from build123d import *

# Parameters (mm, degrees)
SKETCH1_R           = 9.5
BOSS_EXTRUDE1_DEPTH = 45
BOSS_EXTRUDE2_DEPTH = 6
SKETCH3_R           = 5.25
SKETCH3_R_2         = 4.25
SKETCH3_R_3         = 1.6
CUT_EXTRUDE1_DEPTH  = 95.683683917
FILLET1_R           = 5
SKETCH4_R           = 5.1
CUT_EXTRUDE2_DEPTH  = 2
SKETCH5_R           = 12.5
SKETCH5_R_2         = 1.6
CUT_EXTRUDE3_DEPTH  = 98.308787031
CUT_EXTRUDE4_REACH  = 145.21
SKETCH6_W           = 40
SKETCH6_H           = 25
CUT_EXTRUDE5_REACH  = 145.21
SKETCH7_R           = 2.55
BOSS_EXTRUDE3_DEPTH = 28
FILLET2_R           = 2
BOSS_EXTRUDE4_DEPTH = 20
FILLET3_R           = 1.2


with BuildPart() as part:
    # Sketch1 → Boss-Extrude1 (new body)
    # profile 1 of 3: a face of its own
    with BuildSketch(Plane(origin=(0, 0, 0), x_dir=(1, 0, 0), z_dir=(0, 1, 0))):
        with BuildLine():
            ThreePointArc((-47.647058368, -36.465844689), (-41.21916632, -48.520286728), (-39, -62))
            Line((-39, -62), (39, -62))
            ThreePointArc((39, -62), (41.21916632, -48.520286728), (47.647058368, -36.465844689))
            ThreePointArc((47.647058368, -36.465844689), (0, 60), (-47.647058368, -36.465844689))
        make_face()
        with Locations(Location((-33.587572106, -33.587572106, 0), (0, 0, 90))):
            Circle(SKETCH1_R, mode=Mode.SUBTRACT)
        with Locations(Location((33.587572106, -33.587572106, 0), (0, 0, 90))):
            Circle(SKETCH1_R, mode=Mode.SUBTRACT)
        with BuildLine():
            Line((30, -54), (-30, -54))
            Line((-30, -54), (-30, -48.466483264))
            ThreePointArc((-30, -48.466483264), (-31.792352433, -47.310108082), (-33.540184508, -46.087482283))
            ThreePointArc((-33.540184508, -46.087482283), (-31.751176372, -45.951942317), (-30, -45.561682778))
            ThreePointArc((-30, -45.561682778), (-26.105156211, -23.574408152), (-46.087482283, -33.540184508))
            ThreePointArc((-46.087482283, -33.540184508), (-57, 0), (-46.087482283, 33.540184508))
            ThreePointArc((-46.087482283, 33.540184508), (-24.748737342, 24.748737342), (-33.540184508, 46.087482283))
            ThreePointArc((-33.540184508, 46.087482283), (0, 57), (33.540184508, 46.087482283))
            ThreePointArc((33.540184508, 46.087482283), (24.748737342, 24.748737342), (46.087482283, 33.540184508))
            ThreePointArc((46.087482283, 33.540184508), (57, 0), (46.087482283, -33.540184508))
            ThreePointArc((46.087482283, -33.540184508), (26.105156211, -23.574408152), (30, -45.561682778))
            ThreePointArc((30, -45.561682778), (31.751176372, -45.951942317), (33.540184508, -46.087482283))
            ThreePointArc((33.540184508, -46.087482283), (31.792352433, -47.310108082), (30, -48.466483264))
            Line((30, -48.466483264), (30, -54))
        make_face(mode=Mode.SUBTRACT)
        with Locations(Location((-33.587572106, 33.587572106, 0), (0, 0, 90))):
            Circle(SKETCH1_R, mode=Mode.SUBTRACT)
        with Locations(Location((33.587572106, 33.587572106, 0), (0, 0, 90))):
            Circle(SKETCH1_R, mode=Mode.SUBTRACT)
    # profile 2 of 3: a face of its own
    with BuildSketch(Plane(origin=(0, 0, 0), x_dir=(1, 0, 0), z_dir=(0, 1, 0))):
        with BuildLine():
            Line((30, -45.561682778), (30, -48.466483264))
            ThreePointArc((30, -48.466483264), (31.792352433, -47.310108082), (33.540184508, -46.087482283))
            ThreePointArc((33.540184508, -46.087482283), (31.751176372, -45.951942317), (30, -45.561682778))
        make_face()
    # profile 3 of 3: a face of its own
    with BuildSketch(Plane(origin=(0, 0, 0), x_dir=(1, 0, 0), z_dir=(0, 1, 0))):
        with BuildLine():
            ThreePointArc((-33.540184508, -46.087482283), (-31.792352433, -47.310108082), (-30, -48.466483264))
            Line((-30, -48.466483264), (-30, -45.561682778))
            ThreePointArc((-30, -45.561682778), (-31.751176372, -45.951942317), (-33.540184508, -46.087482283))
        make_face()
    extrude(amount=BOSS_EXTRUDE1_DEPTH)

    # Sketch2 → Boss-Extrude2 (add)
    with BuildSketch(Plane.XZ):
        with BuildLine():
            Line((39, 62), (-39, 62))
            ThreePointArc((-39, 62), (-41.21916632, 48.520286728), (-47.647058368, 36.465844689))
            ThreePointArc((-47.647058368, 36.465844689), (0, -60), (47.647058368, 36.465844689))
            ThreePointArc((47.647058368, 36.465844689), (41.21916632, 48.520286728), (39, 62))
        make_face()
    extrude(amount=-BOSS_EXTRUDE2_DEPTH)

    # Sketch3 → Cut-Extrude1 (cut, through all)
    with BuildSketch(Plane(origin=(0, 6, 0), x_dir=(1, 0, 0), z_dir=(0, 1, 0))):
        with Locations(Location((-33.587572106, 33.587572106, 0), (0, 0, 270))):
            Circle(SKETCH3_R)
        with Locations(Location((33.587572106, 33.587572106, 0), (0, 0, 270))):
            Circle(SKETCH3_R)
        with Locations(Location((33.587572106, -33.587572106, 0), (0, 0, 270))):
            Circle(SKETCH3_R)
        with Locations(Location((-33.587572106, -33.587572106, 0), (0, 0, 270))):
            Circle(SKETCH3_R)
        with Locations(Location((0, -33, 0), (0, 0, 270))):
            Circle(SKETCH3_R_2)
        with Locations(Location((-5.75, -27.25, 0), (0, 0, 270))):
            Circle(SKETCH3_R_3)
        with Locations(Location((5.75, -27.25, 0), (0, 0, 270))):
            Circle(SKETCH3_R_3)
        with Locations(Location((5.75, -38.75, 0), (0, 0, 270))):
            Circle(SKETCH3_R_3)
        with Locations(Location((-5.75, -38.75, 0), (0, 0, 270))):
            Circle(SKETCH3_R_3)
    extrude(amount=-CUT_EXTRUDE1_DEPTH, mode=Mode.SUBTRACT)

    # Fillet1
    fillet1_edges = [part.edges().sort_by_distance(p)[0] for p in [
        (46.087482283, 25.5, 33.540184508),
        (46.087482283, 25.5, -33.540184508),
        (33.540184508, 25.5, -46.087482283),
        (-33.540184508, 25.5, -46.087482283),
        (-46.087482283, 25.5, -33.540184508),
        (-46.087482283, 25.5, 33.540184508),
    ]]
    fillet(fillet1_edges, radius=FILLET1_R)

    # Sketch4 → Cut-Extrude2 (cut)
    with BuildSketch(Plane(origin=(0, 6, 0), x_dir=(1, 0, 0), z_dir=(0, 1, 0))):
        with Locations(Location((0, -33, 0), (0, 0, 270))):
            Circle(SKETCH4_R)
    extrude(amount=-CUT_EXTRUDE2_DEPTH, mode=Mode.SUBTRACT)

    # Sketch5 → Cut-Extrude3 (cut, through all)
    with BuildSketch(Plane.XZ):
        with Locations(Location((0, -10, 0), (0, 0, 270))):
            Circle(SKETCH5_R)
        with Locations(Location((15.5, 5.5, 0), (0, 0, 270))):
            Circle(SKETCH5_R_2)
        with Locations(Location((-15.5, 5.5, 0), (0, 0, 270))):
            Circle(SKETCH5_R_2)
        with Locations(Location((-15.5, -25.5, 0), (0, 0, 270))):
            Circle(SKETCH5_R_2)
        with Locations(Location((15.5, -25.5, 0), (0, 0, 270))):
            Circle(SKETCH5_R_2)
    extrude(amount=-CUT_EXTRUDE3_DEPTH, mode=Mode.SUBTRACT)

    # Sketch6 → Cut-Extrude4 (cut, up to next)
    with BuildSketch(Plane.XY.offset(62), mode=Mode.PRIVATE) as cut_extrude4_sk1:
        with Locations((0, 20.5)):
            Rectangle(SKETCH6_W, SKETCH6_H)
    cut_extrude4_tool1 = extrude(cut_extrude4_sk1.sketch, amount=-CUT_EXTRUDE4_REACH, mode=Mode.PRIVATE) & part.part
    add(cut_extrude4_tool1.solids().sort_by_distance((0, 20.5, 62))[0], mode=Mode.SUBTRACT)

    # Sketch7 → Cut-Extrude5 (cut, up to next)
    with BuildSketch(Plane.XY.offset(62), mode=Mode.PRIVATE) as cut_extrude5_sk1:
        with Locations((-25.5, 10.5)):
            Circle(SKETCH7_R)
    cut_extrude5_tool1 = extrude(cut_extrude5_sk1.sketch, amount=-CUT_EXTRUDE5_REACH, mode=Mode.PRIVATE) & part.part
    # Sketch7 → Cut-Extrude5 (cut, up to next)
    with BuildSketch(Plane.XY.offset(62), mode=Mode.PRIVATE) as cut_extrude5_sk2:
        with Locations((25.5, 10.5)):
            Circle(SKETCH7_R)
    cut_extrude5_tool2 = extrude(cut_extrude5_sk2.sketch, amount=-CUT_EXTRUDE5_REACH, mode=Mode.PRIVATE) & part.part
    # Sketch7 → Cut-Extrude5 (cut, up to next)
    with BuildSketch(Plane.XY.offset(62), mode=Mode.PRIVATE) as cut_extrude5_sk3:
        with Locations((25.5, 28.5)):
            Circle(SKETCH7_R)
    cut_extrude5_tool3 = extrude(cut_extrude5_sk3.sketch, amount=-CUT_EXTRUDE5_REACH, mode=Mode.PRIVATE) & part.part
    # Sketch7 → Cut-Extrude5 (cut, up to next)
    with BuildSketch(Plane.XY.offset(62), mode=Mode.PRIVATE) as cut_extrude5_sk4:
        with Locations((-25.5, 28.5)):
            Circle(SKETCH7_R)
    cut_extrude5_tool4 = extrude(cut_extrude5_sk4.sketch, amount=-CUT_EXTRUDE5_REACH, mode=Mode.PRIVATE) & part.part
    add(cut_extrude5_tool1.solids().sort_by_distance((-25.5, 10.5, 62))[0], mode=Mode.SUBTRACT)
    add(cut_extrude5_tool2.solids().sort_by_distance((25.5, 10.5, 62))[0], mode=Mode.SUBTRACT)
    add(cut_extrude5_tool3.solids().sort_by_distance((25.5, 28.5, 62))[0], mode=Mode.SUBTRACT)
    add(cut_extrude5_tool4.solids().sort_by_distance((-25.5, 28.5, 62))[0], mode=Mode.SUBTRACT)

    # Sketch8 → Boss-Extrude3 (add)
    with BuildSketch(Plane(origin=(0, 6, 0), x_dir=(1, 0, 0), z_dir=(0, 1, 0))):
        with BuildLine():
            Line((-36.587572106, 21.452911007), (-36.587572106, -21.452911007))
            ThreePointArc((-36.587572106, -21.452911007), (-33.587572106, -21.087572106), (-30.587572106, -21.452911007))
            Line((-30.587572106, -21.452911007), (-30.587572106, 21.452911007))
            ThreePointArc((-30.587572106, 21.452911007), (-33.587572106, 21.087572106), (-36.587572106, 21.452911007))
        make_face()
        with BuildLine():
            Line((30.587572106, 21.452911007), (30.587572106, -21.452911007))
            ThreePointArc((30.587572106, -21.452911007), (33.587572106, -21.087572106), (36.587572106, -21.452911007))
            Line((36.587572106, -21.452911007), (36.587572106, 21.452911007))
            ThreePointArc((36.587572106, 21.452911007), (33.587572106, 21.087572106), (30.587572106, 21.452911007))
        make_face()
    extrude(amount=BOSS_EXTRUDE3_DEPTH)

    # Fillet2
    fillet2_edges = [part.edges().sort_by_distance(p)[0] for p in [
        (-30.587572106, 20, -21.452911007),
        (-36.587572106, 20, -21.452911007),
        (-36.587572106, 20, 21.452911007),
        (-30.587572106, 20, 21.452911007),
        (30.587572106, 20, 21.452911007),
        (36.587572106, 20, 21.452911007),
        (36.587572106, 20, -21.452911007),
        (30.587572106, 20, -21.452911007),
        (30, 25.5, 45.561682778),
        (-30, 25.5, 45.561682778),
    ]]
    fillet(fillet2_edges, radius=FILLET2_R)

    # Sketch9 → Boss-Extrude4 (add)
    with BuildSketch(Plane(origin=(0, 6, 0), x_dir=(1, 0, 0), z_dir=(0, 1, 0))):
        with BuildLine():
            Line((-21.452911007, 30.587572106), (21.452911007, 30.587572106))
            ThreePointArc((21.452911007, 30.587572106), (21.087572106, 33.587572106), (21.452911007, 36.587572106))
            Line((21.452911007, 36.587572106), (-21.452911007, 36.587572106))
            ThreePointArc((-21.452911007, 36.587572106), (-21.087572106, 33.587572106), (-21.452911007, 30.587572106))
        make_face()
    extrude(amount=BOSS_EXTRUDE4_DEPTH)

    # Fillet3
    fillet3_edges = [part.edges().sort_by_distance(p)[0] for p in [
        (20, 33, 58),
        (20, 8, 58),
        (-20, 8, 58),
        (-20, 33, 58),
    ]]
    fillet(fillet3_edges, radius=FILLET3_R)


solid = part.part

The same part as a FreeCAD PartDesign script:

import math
import FreeCAD as App
import Part
import Sketcher
Q = App.Units.Quantity


def edges_at(feature, points):
    """Names of the edges that pass closest to the given points."""
    edges = feature.Shape.Edges
    near = lambda p: min(range(len(edges)), key=lambda i: edges[i].distToShape(Part.Vertex(*p))[0])
    return sorted({f"Edge{near(p) + 1}" for p in points})

doc = App.newDocument("Part")
params = doc.addObject("Spreadsheet::Sheet", "Params")
for row, (alias, value) in enumerate([
    ("sketch1_diameter", "19 mm"),
    ("sketch1_radius", "42 mm"),
    ("sketch1_radius2", "60 mm"),
    ("sketch1_radius3", "57 mm"),
    ("sketch1_radius4", "12.5 mm"),
    ("pad1_length", "45 mm"),
    ("sketch2_radius", "42 mm"),
    ("sketch2_radius2", "60 mm"),
    ("sketch2_width", "78 mm"),
    ("pad2_length", "6 mm"),
    ("sketch3_diameter", "10.5 mm"),
    ("sketch3_diameter2", "8.5 mm"),
    ("sketch3_diameter3", "3.2 mm"),
    ("fillet_radius", "5 mm"),
    ("sketch4_diameter", "10.2 mm"),
    ("pocket2_length", "2 mm"),
    ("sketch5_diameter", "25 mm"),
    ("sketch5_diameter2", "3.2 mm"),
    ("sketch6_width", "40 mm"),
    ("sketch6_height", "25 mm"),
    ("sketch7_diameter", "5.1 mm"),
    ("sketch8_diameter", "5.1 mm"),
    ("sketch9_diameter", "5.1 mm"),
    ("sketch10_diameter", "5.1 mm"),
    ("sketch11_radius", "12.5 mm"),
    ("pad3_length", "28 mm"),
    ("fillet2_radius", "2 mm"),
    ("sketch12_radius", "12.5 mm"),
    ("pad4_length", "20 mm"),
    ("fillet3_radius", "1.2 mm"),
], start=1):
    params.set(f"A{row}", alias)
    params.set(f"B{row}", "=" + value)
    params.setAlias(f"B{row}", alias)

body = doc.addObject("PartDesign::Body", "Body")

sketch1 = body.newObject("Sketcher::SketchObject", "Sketch")
sketch1.AttachmentSupport = (doc.getObject("XZ_Plane"), [""])
sketch1.MapMode = "FlatFace"
sketch1.addGeometry(Part.ArcOfCircle(Part.Circle(App.Vector(-81, 62, 0), App.Vector(0, 0, 1), 42), math.radians(-37), math.radians(0)), False)
sketch1.addGeometry(Part.LineSegment(App.Vector(-39, 62, 0), App.Vector(39, 62, 0)), False)
sketch1.addGeometry(Part.ArcOfCircle(Part.Circle(App.Vector(81, 62, 0), App.Vector(0, 0, 1), 42), math.radians(180), math.radians(217)), False)
sketch1.addGeometry(Part.ArcOfCircle(Part.Circle(App.Vector(0, 0, 0), App.Vector(0, 0, 1), 60), math.radians(143), math.radians(397)), False)
sketch1.addGeometry(Part.Circle(App.Vector(-34, 34, 0), App.Vector(0, 0, 1), 10), False)
sketch1.addGeometry(Part.Circle(App.Vector(34, 34, 0), App.Vector(0, 0, 1), 10), False)
sketch1.addGeometry(Part.Circle(App.Vector(-34, -34, 0), App.Vector(0, 0, 1), 10), False)
sketch1.addGeometry(Part.LineSegment(App.Vector(30, 54, 0), App.Vector(-30, 54, 0)), False)
sketch1.addGeometry(Part.LineSegment(App.Vector(-30, 54, 0), App.Vector(-30, 46, 0)), False)
sketch1.addGeometry(Part.ArcOfCircle(Part.Circle(App.Vector(-34, 34, 0), App.Vector(0, 0, 1), 12), math.radians(-180), math.radians(73)), False)
sketch1.addGeometry(Part.ArcOfCircle(Part.Circle(App.Vector(0, 0, 0), App.Vector(0, 0, 1), 57), math.radians(144), math.radians(216)), False)
sketch1.addGeometry(Part.ArcOfCircle(Part.Circle(App.Vector(-34, -34, 0), App.Vector(0, 0, 1), 12), math.radians(-90), math.radians(180)), False)
sketch1.addGeometry(Part.ArcOfCircle(Part.Circle(App.Vector(0, 0, 0), App.Vector(0, 0, 1), 57), math.radians(-126), math.radians(-54)), False)
sketch1.addGeometry(Part.ArcOfCircle(Part.Circle(App.Vector(34, -34, 0), App.Vector(0, 0, 1), 12), math.radians(0), math.radians(270)), False)
sketch1.addGeometry(Part.ArcOfCircle(Part.Circle(App.Vector(0, 0, 0), App.Vector(0, 0, 1), 57), math.radians(-36), math.radians(36)), False)
sketch1.addGeometry(Part.ArcOfCircle(Part.Circle(App.Vector(34, 34, 0), App.Vector(0, 0, 1), 12), math.radians(107), math.radians(360)), False)
sketch1.addGeometry(Part.LineSegment(App.Vector(30, 46, 0), App.Vector(30, 54, 0)), False)
sketch1.addGeometry(Part.Circle(App.Vector(34, -34, 0), App.Vector(0, 0, 1), 10), False)
sketch1.addConstraint(Sketcher.Constraint("Coincident", 0, 2, 1, 1))
sketch1.addConstraint(Sketcher.Constraint("Coincident", 1, 2, 2, 1))
sketch1.addConstraint(Sketcher.Constraint("Tangent", 2, 2, 3, 2))
sketch1.addConstraint(Sketcher.Constraint("Tangent", 3, 1, 0, 1))
sketch1.addConstraint(Sketcher.Constraint("Coincident", 7, 2, 8, 1))
sketch1.addConstraint(Sketcher.Constraint("Coincident", 8, 2, 9, 2))
sketch1.addConstraint(Sketcher.Constraint("Coincident", 9, 1, 10, 1))
sketch1.addConstraint(Sketcher.Constraint("Coincident", 10, 2, 11, 2))
sketch1.addConstraint(Sketcher.Constraint("Coincident", 11, 1, 12, 1))
sketch1.addConstraint(Sketcher.Constraint("Coincident", 12, 2, 13, 2))
sketch1.addConstraint(Sketcher.Constraint("Coincident", 13, 1, 14, 1))
sketch1.addConstraint(Sketcher.Constraint("Coincident", 14, 2, 15, 2))
sketch1.addConstraint(Sketcher.Constraint("Coincident", 15, 1, 16, 1))
sketch1.addConstraint(Sketcher.Constraint("Coincident", 16, 2, 7, 1))
sketch1.addConstraint(Sketcher.Constraint("Horizontal", 1))
sketch1.addConstraint(Sketcher.Constraint("Horizontal", 7))
sketch1.addConstraint(Sketcher.Constraint("Vertical", 8))
sketch1.addConstraint(Sketcher.Constraint("Vertical", 16))
sketch1.addConstraint(Sketcher.Constraint("Coincident", 3, 3, -1, 1))
sketch1.addConstraint(Sketcher.Constraint("Coincident", 10, 3, -1, 1))
sketch1.addConstraint(Sketcher.Constraint("Coincident", 12, 3, -1, 1))
sketch1.addConstraint(Sketcher.Constraint("Coincident", 14, 3, -1, 1))
sketch1.addConstraint(Sketcher.Constraint("Coincident", 9, 3, 4, 3))
sketch1.addConstraint(Sketcher.Constraint("Coincident", 11, 3, 6, 3))
sketch1.addConstraint(Sketcher.Constraint("Coincident", 15, 3, 5, 3))
sketch1.addConstraint(Sketcher.Constraint("Coincident", 17, 3, 13, 3))
sketch1.addConstraint(Sketcher.Constraint("Equal", 0, 2))
sketch1.addConstraint(Sketcher.Constraint("Equal", 4, 5))
sketch1.addConstraint(Sketcher.Constraint("Equal", 5, 6))
sketch1.addConstraint(Sketcher.Constraint("Equal", 9, 11))
sketch1.addConstraint(Sketcher.Constraint("Equal", 10, 12))
sketch1.addConstraint(Sketcher.Constraint("Equal", 11, 13))
sketch1.addConstraint(Sketcher.Constraint("Equal", 12, 14))
sketch1.addConstraint(Sketcher.Constraint("Equal", 13, 15))
sketch1.addConstraint(Sketcher.Constraint("Equal", 6, 17))
sketch1.addConstraint(Sketcher.Constraint("Symmetric", 5, 3, 6, 3, -1, 1))
sketch1.addConstraint(Sketcher.Constraint("Symmetric", 4, 3, 13, 3, -1, 1))
sketch1.addConstraint(Sketcher.Constraint("Symmetric", 4, 3, 5, 3, -2))
sketch1.addConstraint(Sketcher.Constraint("Horizontal", 0, 3, 2, 3))
sketch1.addConstraint(Sketcher.Constraint("Horizontal", 8, 2, 15, 1))
sketch1.addConstraint(Sketcher.Constraint("Diameter", 4, Q("19 mm")))
sketch1.addConstraint(Sketcher.Constraint("Radius", 0, Q("42 mm")))
sketch1.addConstraint(Sketcher.Constraint("Radius", 3, Q("60 mm")))
sketch1.addConstraint(Sketcher.Constraint("Radius", 10, Q("57 mm")))
sketch1.addConstraint(Sketcher.Constraint("Radius", 9, Q("12.5 mm")))
sketch1.addConstraint(Sketcher.Constraint("DistanceX", 1, 1, 1, 2, Q("78 mm")))
sketch1.addConstraint(Sketcher.Constraint("DistanceX", 7, 2, 7, 1, Q("60 mm")))
sketch1.addConstraint(Sketcher.Constraint("DistanceY", -1, 1, 0, 2, Q("62 mm")))
sketch1.addConstraint(Sketcher.Constraint("DistanceY", -1, 1, 7, 2, Q("54 mm")))
sketch1.addConstraint(Sketcher.Constraint("DistanceY", 9, 1, 8, 2, Q("12.021498 mm")))
sketch1.addConstraint(Sketcher.Constraint("DistanceY", 8, 2, 8, 1, Q("8.438317 mm")))
sketch1.setExpression("Constraints[40]", "Params.sketch1_diameter")
sketch1.setExpression("Constraints[41]", "Params.sketch1_radius")
sketch1.setExpression("Constraints[42]", "Params.sketch1_radius2")
sketch1.setExpression("Constraints[43]", "Params.sketch1_radius3")
sketch1.setExpression("Constraints[44]", "Params.sketch1_radius4")
pad1 = body.newObject("PartDesign::Pad", "Pad")
pad1.Profile = sketch1
pad1.setExpression("Length", "Params.pad1_length")
pad1.Reversed = True

sketch2 = body.newObject("Sketcher::SketchObject", "Sketch001")
sketch2.AttachmentSupport = (doc.getObject("XZ_Plane"), [""])
sketch2.MapMode = "FlatFace"
sketch2.addGeometry(Part.LineSegment(App.Vector(39, 62, 0), App.Vector(-39, 62, 0)), False)
sketch2.addGeometry(Part.ArcOfCircle(Part.Circle(App.Vector(-81, 62, 0), App.Vector(0, 0, 1), 42), math.radians(-37), math.radians(0)), False)
sketch2.addGeometry(Part.ArcOfCircle(Part.Circle(App.Vector(0, 0, 0), App.Vector(0, 0, 1), 60), math.radians(143), math.radians(397)), False)
sketch2.addGeometry(Part.ArcOfCircle(Part.Circle(App.Vector(81, 62, 0), App.Vector(0, 0, 1), 42), math.radians(180), math.radians(217)), False)
sketch2.addConstraint(Sketcher.Constraint("Coincident", 0, 2, 1, 2))
sketch2.addConstraint(Sketcher.Constraint("Tangent", 1, 1, 2, 1))
sketch2.addConstraint(Sketcher.Constraint("Tangent", 2, 2, 3, 2))
sketch2.addConstraint(Sketcher.Constraint("Coincident", 3, 1, 0, 1))
sketch2.addConstraint(Sketcher.Constraint("Horizontal", 0))
sketch2.addConstraint(Sketcher.Constraint("Coincident", 2, 3, -1, 1))
sketch2.addConstraint(Sketcher.Constraint("Equal", 1, 3))
sketch2.addConstraint(Sketcher.Constraint("Horizontal", 1, 3, 3, 3))
sketch2.addConstraint(Sketcher.Constraint("Radius", 1, Q("42 mm")))
sketch2.addConstraint(Sketcher.Constraint("Radius", 2, Q("60 mm")))
sketch2.addConstraint(Sketcher.Constraint("DistanceX", 0, 2, 0, 1, Q("78 mm")))
sketch2.addConstraint(Sketcher.Constraint("DistanceY", -1, 1, 0, 2, Q("62 mm")))
sketch2.setExpression("Constraints[8]", "Params.sketch2_radius")
sketch2.setExpression("Constraints[9]", "Params.sketch2_radius2")
sketch2.setExpression("Constraints[10]", "Params.sketch2_width")
pad2 = body.newObject("PartDesign::Pad", "Pad001")
pad2.Profile = sketch2
pad2.setExpression("Length", "Params.pad2_length")
pad2.Reversed = True

sketch3 = body.newObject("Sketcher::SketchObject", "Sketch002")
sketch3.AttachmentSupport = (doc.getObject("XZ_Plane"), [""])
sketch3.MapMode = "FlatFace"
sketch3.AttachmentOffset = App.Placement(App.Vector(0, 0, -6), App.Rotation())
sketch3.addGeometry(Part.Circle(App.Vector(-33.6, -33.6, 0), App.Vector(0, 0, 1), 5.2), False)
sketch3.addGeometry(Part.Circle(App.Vector(33.6, -33.6, 0), App.Vector(0, 0, 1), 5.2), False)
sketch3.addGeometry(Part.Circle(App.Vector(33.6, 33.6, 0), App.Vector(0, 0, 1), 5.2), False)
sketch3.addGeometry(Part.Circle(App.Vector(-33.6, 33.6, 0), App.Vector(0, 0, 1), 5.2), False)
sketch3.addGeometry(Part.Circle(App.Vector(0, 33, 0), App.Vector(0, 0, 1), 4.2), False)
sketch3.addGeometry(Part.Circle(App.Vector(-5.8, 27.2, 0), App.Vector(0, 0, 1), 1.6), False)
sketch3.addGeometry(Part.Circle(App.Vector(5.8, 27.2, 0), App.Vector(0, 0, 1), 1.6), False)
sketch3.addGeometry(Part.Circle(App.Vector(5.8, 38.8, 0), App.Vector(0, 0, 1), 1.6), False)
sketch3.addGeometry(Part.Circle(App.Vector(-5.8, 38.8, 0), App.Vector(0, 0, 1), 1.6), False)
sketch3.addConstraint(Sketcher.Constraint("Equal", 0, 1))
sketch3.addConstraint(Sketcher.Constraint("Equal", 1, 2))
sketch3.addConstraint(Sketcher.Constraint("Equal", 2, 3))
sketch3.addConstraint(Sketcher.Constraint("Equal", 5, 6))
sketch3.addConstraint(Sketcher.Constraint("Equal", 6, 7))
sketch3.addConstraint(Sketcher.Constraint("Equal", 7, 8))
sketch3.addConstraint(Sketcher.Constraint("Symmetric", 0, 3, 2, 3, -1, 1))
sketch3.addConstraint(Sketcher.Constraint("Symmetric", 1, 3, 3, 3, -1, 1))
sketch3.addConstraint(Sketcher.Constraint("Symmetric", 0, 3, 1, 3, -2))
sketch3.addConstraint(Sketcher.Constraint("Symmetric", 5, 3, 6, 3, -2))
sketch3.addConstraint(Sketcher.Constraint("Symmetric", 7, 3, 8, 3, -2))
sketch3.addConstraint(Sketcher.Constraint("PointOnObject", 4, 3, -2))
sketch3.addConstraint(Sketcher.Constraint("Vertical", 6, 3, 7, 3))
sketch3.addConstraint(Sketcher.Constraint("Diameter", 0, Q("10.5 mm")))
sketch3.addConstraint(Sketcher.Constraint("Diameter", 4, Q("8.5 mm")))
sketch3.addConstraint(Sketcher.Constraint("Diameter", 5, Q("3.2 mm")))
sketch3.addConstraint(Sketcher.Constraint("DistanceY", -1, 1, 4, 3, Q("33 mm")))
sketch3.addConstraint(Sketcher.Constraint("DistanceX", 5, 3, 6, 3, Q("11.5 mm")))
sketch3.addConstraint(Sketcher.Constraint("DistanceY", 6, 3, 7, 3, Q("11.5 mm")))
sketch3.addConstraint(Sketcher.Constraint("DistanceY", -1, 1, 5, 3, Q("27.25 mm")))
sketch3.addConstraint(Sketcher.Constraint("DistanceX", 0, 3, -1, 1, Q("33.587572 mm")))
sketch3.addConstraint(Sketcher.Constraint("DistanceY", 0, 3, -1, 1, Q("33.587572 mm")))
sketch3.setExpression("Constraints[13]", "Params.sketch3_diameter")
sketch3.setExpression("Constraints[14]", "Params.sketch3_diameter2")
sketch3.setExpression("Constraints[15]", "Params.sketch3_diameter3")
pocket1 = body.newObject("PartDesign::Pocket", "Pocket")
pocket1.Profile = sketch3
pocket1.Type = "ThroughAll"
pocket1.Reversed = True
doc.recompute()

fillet = body.newObject("PartDesign::Fillet", "Fillet")
fillet.Base = (pocket1, edges_at(pocket1, [
    (46.087, 25.5, 33.54),
    (46.087, 25.5, -33.54),
    (33.54, 25.5, -46.087),
    (-33.54, 25.5, -46.087),
    (-46.087, 25.5, -33.54),
    (-46.087, 25.5, 33.54),
]))
fillet.setExpression("Radius", "Params.fillet_radius")

sketch4 = body.newObject("Sketcher::SketchObject", "Sketch003")
sketch4.AttachmentSupport = (doc.getObject("XZ_Plane"), [""])
sketch4.MapMode = "FlatFace"
sketch4.AttachmentOffset = App.Placement(App.Vector(0, 0, -6), App.Rotation())
sketch4.addGeometry(Part.Circle(App.Vector(0, 33, 0), App.Vector(0, 0, 1), 5), False)
sketch4.addConstraint(Sketcher.Constraint("PointOnObject", 0, 3, -2))
sketch4.addConstraint(Sketcher.Constraint("Diameter", 0, Q("10.2 mm")))
sketch4.addConstraint(Sketcher.Constraint("DistanceY", -1, 1, 0, 3, Q("33 mm")))
sketch4.setExpression("Constraints[1]", "Params.sketch4_diameter")
pocket2 = body.newObject("PartDesign::Pocket", "Pocket001")
pocket2.Profile = sketch4
pocket2.setExpression("Length", "Params.pocket2_length")
pocket2.Reversed = True

sketch5 = body.newObject("Sketcher::SketchObject", "Sketch004")
sketch5.AttachmentSupport = (doc.getObject("XZ_Plane"), [""])
sketch5.MapMode = "FlatFace"
sketch5.addGeometry(Part.Circle(App.Vector(0, -10, 0), App.Vector(0, 0, 1), 12.5), False)
sketch5.addGeometry(Part.Circle(App.Vector(15.5, 5.5, 0), App.Vector(0, 0, 1), 1.6), False)
sketch5.addGeometry(Part.Circle(App.Vector(-15.5, 5.5, 0), App.Vector(0, 0, 1), 1.6), False)
sketch5.addGeometry(Part.Circle(App.Vector(-15.5, -25.5, 0), App.Vector(0, 0, 1), 1.6), False)
sketch5.addGeometry(Part.Circle(App.Vector(15.5, -25.5, 0), App.Vector(0, 0, 1), 1.6), False)
sketch5.addConstraint(Sketcher.Constraint("Equal", 1, 2))
sketch5.addConstraint(Sketcher.Constraint("Equal", 2, 3))
sketch5.addConstraint(Sketcher.Constraint("Equal", 3, 4))
sketch5.addConstraint(Sketcher.Constraint("Symmetric", 1, 3, 2, 3, -2))
sketch5.addConstraint(Sketcher.Constraint("Symmetric", 3, 3, 4, 3, -2))
sketch5.addConstraint(Sketcher.Constraint("PointOnObject", 0, 3, -2))
sketch5.addConstraint(Sketcher.Constraint("Vertical", 2, 3, 3, 3))
sketch5.addConstraint(Sketcher.Constraint("Diameter", 0, Q("25 mm")))
sketch5.addConstraint(Sketcher.Constraint("Diameter", 1, Q("3.2 mm")))
sketch5.addConstraint(Sketcher.Constraint("DistanceY", 0, 3, -1, 1, Q("10 mm")))
sketch5.addConstraint(Sketcher.Constraint("DistanceX", 2, 3, 1, 3, Q("31 mm")))
sketch5.addConstraint(Sketcher.Constraint("DistanceY", 3, 3, 2, 3, Q("31 mm")))
sketch5.addConstraint(Sketcher.Constraint("DistanceY", -1, 1, 1, 3, Q("5.5 mm")))
sketch5.setExpression("Constraints[7]", "Params.sketch5_diameter")
sketch5.setExpression("Constraints[8]", "Params.sketch5_diameter2")
pocket3 = body.newObject("PartDesign::Pocket", "Pocket002")
pocket3.Profile = sketch5
pocket3.Type = "ThroughAll"

sketch6 = body.newObject("Sketcher::SketchObject", "Sketch005")
sketch6.AttachmentSupport = (doc.getObject("XY_Plane"), [""])
sketch6.MapMode = "FlatFace"
sketch6.AttachmentOffset = App.Placement(App.Vector(0, 0, 62), App.Rotation())
sketch6.addGeometry(Part.LineSegment(App.Vector(-20, 33, 0), App.Vector(-20, 8, 0)), False)
sketch6.addGeometry(Part.LineSegment(App.Vector(-20, 8, 0), App.Vector(20, 8, 0)), False)
sketch6.addGeometry(Part.LineSegment(App.Vector(20, 8, 0), App.Vector(20, 33, 0)), False)
sketch6.addGeometry(Part.LineSegment(App.Vector(20, 33, 0), App.Vector(-20, 33, 0)), False)
sketch6.addConstraint(Sketcher.Constraint("Coincident", 0, 2, 1, 1))
sketch6.addConstraint(Sketcher.Constraint("Coincident", 1, 2, 2, 1))
sketch6.addConstraint(Sketcher.Constraint("Coincident", 2, 2, 3, 1))
sketch6.addConstraint(Sketcher.Constraint("Coincident", 3, 2, 0, 1))
sketch6.addConstraint(Sketcher.Constraint("Vertical", 0))
sketch6.addConstraint(Sketcher.Constraint("Horizontal", 1))
sketch6.addConstraint(Sketcher.Constraint("Vertical", 2))
sketch6.addConstraint(Sketcher.Constraint("Horizontal", 3))
sketch6.addConstraint(Sketcher.Constraint("DistanceX", 1, 1, 1, 2, Q("40 mm")))
sketch6.addConstraint(Sketcher.Constraint("DistanceY", 0, 2, 0, 1, Q("25 mm")))
sketch6.addConstraint(Sketcher.Constraint("DistanceX", 0, 2, -1, 1, Q("20 mm")))
sketch6.addConstraint(Sketcher.Constraint("DistanceY", -1, 1, 0, 2, Q("8 mm")))
sketch6.setExpression("Constraints[8]", "Params.sketch6_width")
sketch6.setExpression("Constraints[9]", "Params.sketch6_height")
pocket4 = body.newObject("PartDesign::Pocket", "Pocket003")
pocket4.Profile = sketch6
pocket4.Type = "UpToFirst"

sketch7 = body.newObject("Sketcher::SketchObject", "Sketch006")
sketch7.AttachmentSupport = (doc.getObject("XY_Plane"), [""])
sketch7.MapMode = "FlatFace"
sketch7.AttachmentOffset = App.Placement(App.Vector(0, 0, 62), App.Rotation())
sketch7.addGeometry(Part.Circle(App.Vector(-25.5, 10.5, 0), App.Vector(0, 0, 1), 2.5), False)
sketch7.addConstraint(Sketcher.Constraint("Diameter", 0, Q("5.1 mm")))
sketch7.addConstraint(Sketcher.Constraint("DistanceX", 0, 3, -1, 1, Q("25.5 mm")))
sketch7.addConstraint(Sketcher.Constraint("DistanceY", -1, 1, 0, 3, Q("10.5 mm")))
sketch7.setExpression("Constraints[0]", "Params.sketch7_diameter")
pocket5 = body.newObject("PartDesign::Pocket", "Pocket004")
pocket5.Profile = sketch7
pocket5.Type = "UpToFirst"

sketch8 = body.newObject("Sketcher::SketchObject", "Sketch007")
sketch8.AttachmentSupport = (doc.getObject("XY_Plane"), [""])
sketch8.MapMode = "FlatFace"
sketch8.AttachmentOffset = App.Placement(App.Vector(0, 0, 62), App.Rotation())
sketch8.addGeometry(Part.Circle(App.Vector(25.5, 10.5, 0), App.Vector(0, 0, 1), 2.5), False)
sketch8.addConstraint(Sketcher.Constraint("Diameter", 0, Q("5.1 mm")))
sketch8.addConstraint(Sketcher.Constraint("DistanceX", -1, 1, 0, 3, Q("25.5 mm")))
sketch8.addConstraint(Sketcher.Constraint("DistanceY", -1, 1, 0, 3, Q("10.5 mm")))
sketch8.setExpression("Constraints[0]", "Params.sketch8_diameter")
pocket6 = body.newObject("PartDesign::Pocket", "Pocket005")
pocket6.Profile = sketch8
pocket6.Type = "UpToFirst"

sketch9 = body.newObject("Sketcher::SketchObject", "Sketch008")
sketch9.AttachmentSupport = (doc.getObject("XY_Plane"), [""])
sketch9.MapMode = "FlatFace"
sketch9.AttachmentOffset = App.Placement(App.Vector(0, 0, 62), App.Rotation())
sketch9.addGeometry(Part.Circle(App.Vector(25.5, 28.5, 0), App.Vector(0, 0, 1), 2.5), False)
sketch9.addConstraint(Sketcher.Constraint("Diameter", 0, Q("5.1 mm")))
sketch9.addConstraint(Sketcher.Constraint("DistanceX", -1, 1, 0, 3, Q("25.5 mm")))
sketch9.addConstraint(Sketcher.Constraint("DistanceY", -1, 1, 0, 3, Q("28.5 mm")))
sketch9.setExpression("Constraints[0]", "Params.sketch9_diameter")
pocket7 = body.newObject("PartDesign::Pocket", "Pocket006")
pocket7.Profile = sketch9
pocket7.Type = "UpToFirst"

sketch10 = body.newObject("Sketcher::SketchObject", "Sketch009")
sketch10.AttachmentSupport = (doc.getObject("XY_Plane"), [""])
sketch10.MapMode = "FlatFace"
sketch10.AttachmentOffset = App.Placement(App.Vector(0, 0, 62), App.Rotation())
sketch10.addGeometry(Part.Circle(App.Vector(-25.5, 28.5, 0), App.Vector(0, 0, 1), 2.5), False)
sketch10.addConstraint(Sketcher.Constraint("Diameter", 0, Q("5.1 mm")))
sketch10.addConstraint(Sketcher.Constraint("DistanceX", 0, 3, -1, 1, Q("25.5 mm")))
sketch10.addConstraint(Sketcher.Constraint("DistanceY", -1, 1, 0, 3, Q("28.5 mm")))
sketch10.setExpression("Constraints[0]", "Params.sketch10_diameter")
pocket8 = body.newObject("PartDesign::Pocket", "Pocket007")
pocket8.Profile = sketch10
pocket8.Type = "UpToFirst"

sketch11 = body.newObject("Sketcher::SketchObject", "Sketch010")
sketch11.AttachmentSupport = (doc.getObject("XZ_Plane"), [""])
sketch11.MapMode = "FlatFace"
sketch11.AttachmentOffset = App.Placement(App.Vector(0, 0, -6), App.Rotation())
sketch11.addGeometry(Part.LineSegment(App.Vector(-37, -21, 0), App.Vector(-37, 21, 0)), False)
sketch11.addGeometry(Part.ArcOfCircle(Part.Circle(App.Vector(-34, 34, 0), App.Vector(0, 0, 1), 12), math.radians(-104), math.radians(-76)), False)
sketch11.addGeometry(Part.LineSegment(App.Vector(-31, 21, 0), App.Vector(-31, -21, 0)), False)
sketch11.addGeometry(Part.ArcOfCircle(Part.Circle(App.Vector(-34, -34, 0), App.Vector(0, 0, 1), 12), math.radians(76), math.radians(104)), False)
sketch11.addGeometry(Part.LineSegment(App.Vector(31, -21, 0), App.Vector(31, 21, 0)), False)
sketch11.addGeometry(Part.ArcOfCircle(Part.Circle(App.Vector(34, 34, 0), App.Vector(0, 0, 1), 12), math.radians(-104), math.radians(-76)), False)
sketch11.addGeometry(Part.LineSegment(App.Vector(37, 21, 0), App.Vector(37, -21, 0)), False)
sketch11.addGeometry(Part.ArcOfCircle(Part.Circle(App.Vector(34, -34, 0), App.Vector(0, 0, 1), 12), math.radians(76), math.radians(104)), False)
sketch11.addConstraint(Sketcher.Constraint("Coincident", 0, 2, 1, 1))
sketch11.addConstraint(Sketcher.Constraint("Coincident", 1, 2, 2, 1))
sketch11.addConstraint(Sketcher.Constraint("Coincident", 2, 2, 3, 1))
sketch11.addConstraint(Sketcher.Constraint("Coincident", 3, 2, 0, 1))
sketch11.addConstraint(Sketcher.Constraint("Coincident", 4, 2, 5, 1))
sketch11.addConstraint(Sketcher.Constraint("Coincident", 5, 2, 6, 1))
sketch11.addConstraint(Sketcher.Constraint("Coincident", 6, 2, 7, 1))
sketch11.addConstraint(Sketcher.Constraint("Coincident", 7, 2, 4, 1))
sketch11.addConstraint(Sketcher.Constraint("Vertical", 0))
sketch11.addConstraint(Sketcher.Constraint("Vertical", 2))
sketch11.addConstraint(Sketcher.Constraint("Vertical", 4))
sketch11.addConstraint(Sketcher.Constraint("Vertical", 6))
sketch11.addConstraint(Sketcher.Constraint("Equal", 1, 3))
sketch11.addConstraint(Sketcher.Constraint("Equal", 3, 5))
sketch11.addConstraint(Sketcher.Constraint("Equal", 5, 7))
sketch11.addConstraint(Sketcher.Constraint("Symmetric", 3, 3, 5, 3, -1, 1))
sketch11.addConstraint(Sketcher.Constraint("Symmetric", 1, 3, 7, 3, -1, 1))
sketch11.addConstraint(Sketcher.Constraint("Symmetric", 1, 3, 5, 3, -2))
sketch11.addConstraint(Sketcher.Constraint("Horizontal", 0, 2, 1, 2))
sketch11.addConstraint(Sketcher.Constraint("Horizontal", 1, 2, 4, 2))
sketch11.addConstraint(Sketcher.Constraint("Horizontal", 4, 2, 5, 2))
sketch11.addConstraint(Sketcher.Constraint("Radius", 1, Q("12.5 mm")))
sketch11.addConstraint(Sketcher.Constraint("DistanceX", 0, 2, 1, 3, Q("3 mm")))
sketch11.addConstraint(Sketcher.Constraint("DistanceY", 0, 1, 0, 2, Q("42.905822 mm")))
sketch11.addConstraint(Sketcher.Constraint("DistanceX", 1, 3, -1, 1, Q("33.587572 mm")))
sketch11.setExpression("Constraints[21]", "Params.sketch11_radius")
pad3 = body.newObject("PartDesign::Pad", "Pad002")
pad3.Profile = sketch11
pad3.setExpression("Length", "Params.pad3_length")
pad3.Reversed = True
doc.recompute()

fillet2 = body.newObject("PartDesign::Fillet", "Fillet001")
fillet2.Base = (pad3, edges_at(pad3, [
    (-30.588, 20, -21.453),
    (-36.588, 20, -21.453),
    (-36.588, 20, 21.453),
    (-30.588, 20, 21.453),
    (30.588, 20, 21.453),
    (36.588, 20, 21.453),
    (36.588, 20, -21.453),
    (30.588, 20, -21.453),
    (30, 25.5, 45.562),
    (-30, 25.5, 45.562),
]))
fillet2.setExpression("Radius", "Params.fillet2_radius")

sketch12 = body.newObject("Sketcher::SketchObject", "Sketch011")
sketch12.AttachmentSupport = (doc.getObject("XZ_Plane"), [""])
sketch12.MapMode = "FlatFace"
sketch12.AttachmentOffset = App.Placement(App.Vector(0, 0, -6), App.Rotation())
sketch12.addGeometry(Part.LineSegment(App.Vector(-21, -31, 0), App.Vector(21, -31, 0)), False)
sketch12.addGeometry(Part.ArcOfCircle(Part.Circle(App.Vector(34, -34, 0), App.Vector(0, 0, 1), 12), math.radians(166), math.radians(194)), False)
sketch12.addGeometry(Part.LineSegment(App.Vector(21, -37, 0), App.Vector(-21, -37, 0)), False)
sketch12.addGeometry(Part.ArcOfCircle(Part.Circle(App.Vector(-34, -34, 0), App.Vector(0, 0, 1), 12), math.radians(-14), math.radians(14)), False)
sketch12.addConstraint(Sketcher.Constraint("Coincident", 0, 2, 1, 1))
sketch12.addConstraint(Sketcher.Constraint("Coincident", 1, 2, 2, 1))
sketch12.addConstraint(Sketcher.Constraint("Coincident", 2, 2, 3, 1))
sketch12.addConstraint(Sketcher.Constraint("Coincident", 3, 2, 0, 1))
sketch12.addConstraint(Sketcher.Constraint("Horizontal", 0))
sketch12.addConstraint(Sketcher.Constraint("Horizontal", 2))
sketch12.addConstraint(Sketcher.Constraint("Equal", 1, 3))
sketch12.addConstraint(Sketcher.Constraint("Symmetric", 1, 3, 3, 3, -2))
sketch12.addConstraint(Sketcher.Constraint("Vertical", 0, 2, 1, 2))
sketch12.addConstraint(Sketcher.Constraint("Radius", 1, Q("12.5 mm")))
sketch12.addConstraint(Sketcher.Constraint("DistanceY", 1, 3, 0, 2, Q("3 mm")))
sketch12.addConstraint(Sketcher.Constraint("DistanceX", 0, 1, 0, 2, Q("42.905822 mm")))
sketch12.addConstraint(Sketcher.Constraint("DistanceY", 1, 3, -1, 1, Q("33.587572 mm")))
sketch12.setExpression("Constraints[9]", "Params.sketch12_radius")
pad4 = body.newObject("PartDesign::Pad", "Pad003")
pad4.Profile = sketch12
pad4.setExpression("Length", "Params.pad4_length")
pad4.Reversed = True
doc.recompute()

fillet3 = body.newObject("PartDesign::Fillet", "Fillet002")
fillet3.Base = (pad4, edges_at(pad4, [
    (20, 33, 58),
    (20, 8, 58),
    (-20, 8, 58),
    (-20, 33, 58),
]))
fillet3.setExpression("Radius", "Params.fillet3_radius")

doc.recompute()
